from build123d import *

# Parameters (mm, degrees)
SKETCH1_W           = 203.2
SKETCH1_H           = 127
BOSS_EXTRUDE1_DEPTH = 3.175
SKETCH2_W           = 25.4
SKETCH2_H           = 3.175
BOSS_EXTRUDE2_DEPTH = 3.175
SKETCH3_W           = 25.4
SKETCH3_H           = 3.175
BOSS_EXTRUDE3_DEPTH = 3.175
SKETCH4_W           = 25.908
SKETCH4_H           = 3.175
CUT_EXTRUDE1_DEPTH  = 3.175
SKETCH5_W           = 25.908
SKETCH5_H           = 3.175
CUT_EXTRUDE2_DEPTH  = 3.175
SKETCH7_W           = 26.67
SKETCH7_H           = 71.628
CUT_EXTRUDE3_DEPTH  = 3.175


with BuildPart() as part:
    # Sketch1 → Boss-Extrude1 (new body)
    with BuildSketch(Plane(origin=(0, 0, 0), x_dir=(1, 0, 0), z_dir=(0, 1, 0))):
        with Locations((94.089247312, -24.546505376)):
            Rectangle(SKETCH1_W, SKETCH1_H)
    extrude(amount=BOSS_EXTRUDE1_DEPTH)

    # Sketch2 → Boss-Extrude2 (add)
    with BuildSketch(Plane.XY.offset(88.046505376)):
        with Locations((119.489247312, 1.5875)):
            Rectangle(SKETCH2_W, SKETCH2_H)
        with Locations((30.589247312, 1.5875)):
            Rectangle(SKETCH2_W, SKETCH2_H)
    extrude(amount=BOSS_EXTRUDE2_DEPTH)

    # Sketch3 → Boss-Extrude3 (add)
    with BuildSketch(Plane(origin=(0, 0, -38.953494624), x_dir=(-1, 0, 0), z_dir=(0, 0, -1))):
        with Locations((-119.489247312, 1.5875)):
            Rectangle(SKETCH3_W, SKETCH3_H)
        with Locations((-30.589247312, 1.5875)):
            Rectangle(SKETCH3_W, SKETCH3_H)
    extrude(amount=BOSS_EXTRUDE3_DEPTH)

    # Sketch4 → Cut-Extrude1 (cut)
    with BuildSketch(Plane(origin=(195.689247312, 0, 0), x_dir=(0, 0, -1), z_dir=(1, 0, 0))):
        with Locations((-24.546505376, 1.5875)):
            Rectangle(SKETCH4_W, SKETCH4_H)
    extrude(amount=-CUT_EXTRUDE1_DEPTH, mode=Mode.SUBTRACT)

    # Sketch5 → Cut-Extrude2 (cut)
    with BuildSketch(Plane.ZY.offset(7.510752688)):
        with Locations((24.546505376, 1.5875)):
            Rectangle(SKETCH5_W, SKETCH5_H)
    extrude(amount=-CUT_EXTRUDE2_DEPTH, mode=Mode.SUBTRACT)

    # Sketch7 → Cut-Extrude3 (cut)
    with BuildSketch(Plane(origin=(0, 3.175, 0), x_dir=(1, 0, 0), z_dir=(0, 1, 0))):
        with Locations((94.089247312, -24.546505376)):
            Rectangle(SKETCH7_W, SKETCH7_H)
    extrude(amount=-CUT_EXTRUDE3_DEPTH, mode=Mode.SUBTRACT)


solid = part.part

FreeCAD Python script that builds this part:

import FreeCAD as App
import Part
import Sketcher

V = App.Vector
Q = App.Units.Quantity


def add_polygon(sketch, points):
    """Adds a closed chain of lines whose ends are joined by coincident constraints."""
    first, n = sketch.GeometryCount, len(points)
    for a, b in zip(points, points[1:] + points[:1]):
        sketch.addGeometry(Part.LineSegment(App.Vector(*a, 0), App.Vector(*b, 0)), False)
    for i in range(n):
        sketch.addConstraint(Sketcher.Constraint("Coincident", first + i, 2, first + (i + 1) % n, 1))

doc = App.newDocument("Part")
body = doc.addObject("PartDesign::Body", "Body")

# Sketch on XZ plane
sketch1 = body.newObject("Sketcher::SketchObject", "Sketch")
sketch1.AttachmentSupport = (doc.getObject("XZ_Plane"), [""])
sketch1.MapMode = "FlatFace"
add_polygon(sketch1, [(-7.510753, -38.953495), (-7.510753, 88.046505), (195.689247, 88.046505), (195.689247, -38.953495)])  # lines 0-3
sketch1.addConstraint([
    Sketcher.Constraint("Vertical", 0),
    Sketcher.Constraint("Horizontal", 1),
    Sketcher.Constraint("Vertical", 2),
    Sketcher.Constraint("Horizontal", 3),
    Sketcher.Constraint("DistanceX", 1, 1, 1, 2, Q("8 in")),
    Sketcher.Constraint("DistanceY", 0, 1, 0, 2, Q("5 in")),
    Sketcher.Constraint("DistanceX", 0, 2, -1, 1, 7.510753),
    Sketcher.Constraint("DistanceY", -1, 1, 0, 2, 88.046505),
])
pad1 = body.newObject("PartDesign::Pad", "Pad")
pad1.Profile = sketch1
pad1.Length = Q("0.125 in")
pad1.Reversed = True

# Sketch on XY plane
sketch2 = body.newObject("Sketcher::SketchObject", "Sketch001")
sketch2.AttachmentSupport = (doc.getObject("XY_Plane"), [""])
sketch2.MapMode = "FlatFace"
sketch2.AttachmentOffset = App.Placement(V(0, 0, 88.046505), App.Rotation())
add_polygon(sketch2, [(106.789247, 3.175), (106.789247, 0), (132.189247, 0), (132.189247, 3.175)])  # lines 0-3
add_polygon(sketch2, [(17.889247, 3.175), (17.889247, 0), (43.289247, 0), (43.289247, 3.175)])  # lines 4-7
sketch2.addConstraint([
    Sketcher.Constraint("Vertical", 0),
    Sketcher.Constraint("Horizontal", 1),
    Sketcher.Constraint("Vertical", 2),
    Sketcher.Constraint("Horizontal", 3),
    Sketcher.Constraint("Vertical", 4),
    Sketcher.Constraint("Horizontal", 5),
    Sketcher.Constraint("Vertical", 6),
    Sketcher.Constraint("Horizontal", 7),
    Sketcher.Constraint("PointOnObject", 0, 2, -1),
    Sketcher.Constraint("PointOnObject", 4, 2, -1),
    Sketcher.Constraint("Horizontal", 3, 2, 6, 2),
    Sketcher.Constraint("Equal", 3, 5),
    Sketcher.Constraint("DistanceX", 1, 1, 1, 2, Q("1 in")),
    Sketcher.Constraint("DistanceX", 4, 2, 0, 2, Q("3.5 in")),
    Sketcher.Constraint("DistanceY", 0, 2, 0, 1, Q("0.125 in")),
    Sketcher.Constraint("DistanceX", -1, 1, 0, 2, 106.789247),
])
pad2 = body.newObject("PartDesign::Pad", "Pad001")
pad2.Profile = sketch2
pad2.Length = Q("0.125 in")

# Sketch on XY plane
sketch3 = body.newObject("Sketcher::SketchObject", "Sketch002")
sketch3.AttachmentSupport = (doc.getObject("XY_Plane"), [""])
sketch3.MapMode = "FlatFace"
sketch3.AttachmentOffset = App.Placement(V(0, 0, -38.953495), App.Rotation())
add_polygon(sketch3, [(132.189247, 3.175), (132.189247, 0), (106.789247, 0), (106.789247, 3.175)])  # lines 0-3
add_polygon(sketch3, [(43.289247, 3.175), (43.289247, 0), (17.889247, 0), (17.889247, 3.175)])  # lines 4-7
sketch3.addConstraint([
    Sketcher.Constraint("Vertical", 0),
    Sketcher.Constraint("Horizontal", 1),
    Sketcher.Constraint("Vertical", 2),
    Sketcher.Constraint("Horizontal", 3),
    Sketcher.Constraint("Vertical", 4),
    Sketcher.Constraint("Horizontal", 5),
    Sketcher.Constraint("Vertical", 6),
    Sketcher.Constraint("Horizontal", 7),
    Sketcher.Constraint("PointOnObject", 0, 2, -1),
    Sketcher.Constraint("PointOnObject", 4, 2, -1),
    Sketcher.Constraint("Horizontal", 3, 2, 6, 2),
    Sketcher.Constraint("Equal", 3, 5),
    Sketcher.Constraint("DistanceX", 1, 2, 1, 1, Q("1 in")),
    Sketcher.Constraint("DistanceX", 4, 2, 1, 2, Q("2.5 in")),
    Sketcher.Constraint("DistanceY", 0, 2, 0, 1, Q("0.125 in")),
    Sketcher.Constraint("DistanceX", -1, 1, 0, 2, 132.189247),
])
pad3 = body.newObject("PartDesign::Pad", "Pad002")
pad3.Profile = sketch3
pad3.Length = Q("0.125 in")
pad3.Reversed = True

# Sketch on YZ plane
sketch4 = body.newObject("Sketcher::SketchObject", "Sketch003")
sketch4.AttachmentSupport = (doc.getObject("YZ_Plane"), [""])
sketch4.MapMode = "FlatFace"
sketch4.AttachmentOffset = App.Placement(V(0, 0, 195.689247), App.Rotation())
add_polygon(sketch4, [(3.175, 37.500505), (0, 37.500505), (0, 11.592505), (3.175, 11.592505)])  # lines 0-3
sketch4.addConstraint([
    Sketcher.Constraint("Horizontal", 0),
    Sketcher.Constraint("Vertical", 1),
    Sketcher.Constraint("Horizontal", 2),
    Sketcher.Constraint("Vertical", 3),
    Sketcher.Constraint("PointOnObject", 0, 2, -2),
    Sketcher.Constraint("DistanceY", 1, 2, 1, 1, Q("1.02 in")),
    Sketcher.Constraint("DistanceX", 0, 2, 0, 1, Q("0.125 in")),
    Sketcher.Constraint("DistanceY", -1, 1, 0, 2, 37.500505),
])
pocket1 = body.newObject("PartDesign::Pocket", "Pocket")
pocket1.Profile = sketch4
pocket1.Length = Q("0.125 in")

# Sketch on YZ plane
sketch5 = body.newObject("Sketcher::SketchObject", "Sketch004")
sketch5.AttachmentSupport = (doc.getObject("YZ_Plane"), [""])
sketch5.MapMode = "FlatFace"
sketch5.AttachmentOffset = App.Placement(V(0, 0, -7.510753), App.Rotation())
add_polygon(sketch5, [(3.175, 11.592505), (0, 11.592505), (0, 37.500505), (3.175, 37.500505)])  # lines 0-3
sketch5.addConstraint([
    Sketcher.Constraint("Horizontal", 0),
    Sketcher.Constraint("Vertical", 1),
    Sketcher.Constraint("Horizontal", 2),
    Sketcher.Constraint("Vertical", 3),
    Sketcher.Constraint("PointOnObject", 0, 2, -2),
    Sketcher.Constraint("DistanceY", 1, 1, 1, 2, Q("1.02 in")),
    Sketcher.Constraint("DistanceX", 0, 2, 0, 1, Q("0.125 in")),
    Sketcher.Constraint("DistanceY", -1, 1, 0, 2, 11.592505),
])
pocket2 = body.newObject("PartDesign::Pocket", "Pocket001")
pocket2.Profile = sketch5
pocket2.Length = Q("0.125 in")
pocket2.Reversed = True

# Sketch on XZ plane
sketch6 = body.newObject("Sketcher::SketchObject", "Sketch005")
sketch6.AttachmentSupport = (doc.getObject("XZ_Plane"), [""])
sketch6.MapMode = "FlatFace"
sketch6.AttachmentOffset = App.Placement(V(0, 0, -0.125 * 25.4), App.Rotation())
add_polygon(sketch6, [(80.754247, -11.267495), (80.754247, 60.360505), (107.424247, 60.360505), (107.424247, -11.267495)])  # lines 0-3
sketch6.addConstraint([
    Sketcher.Constraint("Vertical", 0),
    Sketcher.Constraint("Horizontal", 1),
    Sketcher.Constraint("Vertical", 2),
    Sketcher.Constraint("Horizontal", 3),
    Sketcher.Constraint("DistanceX", 1, 1, 1, 2, Q("1.05 in")),
    Sketcher.Constraint("DistanceY", 0, 1, 0, 2, Q("2.82 in")),
    Sketcher.Constraint("DistanceX", -1, 1, 0, 2, 80.754247),
    Sketcher.Constraint("DistanceY", -1, 1, 0, 2, 60.360505),
])
pocket3 = body.newObject("PartDesign::Pocket", "Pocket002")
pocket3.Profile = sketch6
pocket3.Length = Q("0.125 in")
pocket3.Reversed = True

doc.recompute()
